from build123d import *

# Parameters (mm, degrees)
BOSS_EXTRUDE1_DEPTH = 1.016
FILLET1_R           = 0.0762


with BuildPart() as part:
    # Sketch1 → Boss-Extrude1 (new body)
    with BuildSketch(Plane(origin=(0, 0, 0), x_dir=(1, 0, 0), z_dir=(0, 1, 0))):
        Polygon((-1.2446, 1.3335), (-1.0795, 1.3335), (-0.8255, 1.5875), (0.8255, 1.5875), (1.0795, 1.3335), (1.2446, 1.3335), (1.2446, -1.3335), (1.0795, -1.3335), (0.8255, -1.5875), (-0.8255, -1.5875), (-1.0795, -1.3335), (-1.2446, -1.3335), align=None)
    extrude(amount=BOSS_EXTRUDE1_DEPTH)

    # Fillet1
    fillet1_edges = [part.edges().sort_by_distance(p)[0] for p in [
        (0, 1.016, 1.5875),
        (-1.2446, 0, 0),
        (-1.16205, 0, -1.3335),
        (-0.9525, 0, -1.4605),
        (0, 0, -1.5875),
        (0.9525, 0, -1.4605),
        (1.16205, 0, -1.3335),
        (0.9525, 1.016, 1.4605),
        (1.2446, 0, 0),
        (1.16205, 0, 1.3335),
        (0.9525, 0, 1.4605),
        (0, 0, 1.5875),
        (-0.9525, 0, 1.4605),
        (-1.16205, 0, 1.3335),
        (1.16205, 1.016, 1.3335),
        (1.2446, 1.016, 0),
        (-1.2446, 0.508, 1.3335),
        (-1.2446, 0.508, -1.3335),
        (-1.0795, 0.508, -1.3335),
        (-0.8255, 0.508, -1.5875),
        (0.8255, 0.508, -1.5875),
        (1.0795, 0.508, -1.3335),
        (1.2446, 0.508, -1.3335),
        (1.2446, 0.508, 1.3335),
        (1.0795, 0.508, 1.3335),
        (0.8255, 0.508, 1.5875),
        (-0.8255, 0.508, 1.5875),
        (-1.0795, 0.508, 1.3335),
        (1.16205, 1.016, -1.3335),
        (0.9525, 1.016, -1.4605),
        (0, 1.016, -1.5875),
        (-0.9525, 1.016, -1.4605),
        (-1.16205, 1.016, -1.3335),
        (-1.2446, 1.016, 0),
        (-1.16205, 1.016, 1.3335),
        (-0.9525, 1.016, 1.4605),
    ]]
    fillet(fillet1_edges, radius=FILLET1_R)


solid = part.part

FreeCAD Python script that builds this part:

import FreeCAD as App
import Part
import Sketcher
Q = App.Units.Quantity

doc = App.newDocument("Part")
body = doc.addObject("PartDesign::Body", "Body")

# Sketch on XZ plane
sketch1 = doc.addObject("Sketcher::SketchObject", "Sketch")
body.addObject(sketch1)
sketch1.AttachmentSupport = (doc.XZ_Plane, [""])
sketch1.MapMode = "FlatFace"
sketch1.addGeometry([
    Part.LineSegment(App.Vector(-1.08, -1.33, 0), App.Vector(-1.24, -1.33, 0)),  # 0
    Part.LineSegment(App.Vector(-1.24, -1.33, 0), App.Vector(-1.24, 1.33, 0)),  # 1
    Part.LineSegment(App.Vector(-1.24, 1.33, 0), App.Vector(-1.08, 1.33, 0)),  # 2
    Part.LineSegment(App.Vector(-1.08, 1.33, 0), App.Vector(-0.83, 1.59, 0)),  # 3
    Part.LineSegment(App.Vector(-0.83, 1.59, 0), App.Vector(0.83, 1.59, 0)),  # 4
    Part.LineSegment(App.Vector(0.83, 1.59, 0), App.Vector(1.08, 1.33, 0)),  # 5
    Part.LineSegment(App.Vector(1.08, 1.33, 0), App.Vector(1.24, 1.33, 0)),  # 6
    Part.LineSegment(App.Vector(1.24, 1.33, 0), App.Vector(1.24, -1.33, 0)),  # 7
    Part.LineSegment(App.Vector(1.24, -1.33, 0), App.Vector(1.08, -1.33, 0)),  # 8
    Part.LineSegment(App.Vector(1.08, -1.33, 0), App.Vector(0.83, -1.59, 0)),  # 9
    Part.LineSegment(App.Vector(0.83, -1.59, 0), App.Vector(-0.83, -1.59, 0)),  # 10
    Part.LineSegment(App.Vector(-0.83, -1.59, 0), App.Vector(-1.08, -1.33, 0)),  # 11
], False)
sketch1.addConstraint([
    Sketcher.Constraint("Coincident", 0, 2, 1, 1),
    Sketcher.Constraint("Coincident", 1, 2, 2, 1),
    Sketcher.Constraint("Coincident", 2, 2, 3, 1),
    Sketcher.Constraint("Coincident", 3, 2, 4, 1),
    Sketcher.Constraint("Coincident", 4, 2, 5, 1),
    Sketcher.Constraint("Coincident", 5, 2, 6, 1),
    Sketcher.Constraint("Coincident", 6, 2, 7, 1),
    Sketcher.Constraint("Coincident", 7, 2, 8, 1),
    Sketcher.Constraint("Coincident", 8, 2, 9, 1),
    Sketcher.Constraint("Coincident", 9, 2, 10, 1),
    Sketcher.Constraint("Coincident", 10, 2, 11, 1),
    Sketcher.Constraint("Coincident", 11, 2, 0, 1),
    Sketcher.Constraint("Horizontal", 0),
    Sketcher.Constraint("Vertical", 1),
    Sketcher.Constraint("Horizontal", 2),
    Sketcher.Constraint("Horizontal", 4),
    Sketcher.Constraint("Horizontal", 6),
    Sketcher.Constraint("Vertical", 7),
    Sketcher.Constraint("Horizontal", 8),
    Sketcher.Constraint("Horizontal", 10),
    Sketcher.Constraint("Symmetric", 0, 2, 6, 2, -1, 1),
    Sketcher.Constraint("Symmetric", 2, 2, 8, 2, -1, 1),
    Sketcher.Constraint("Symmetric", 3, 2, 9, 2, -1, 1),
    Sketcher.Constraint("Symmetric", 2, 2, 5, 2, -2),
    Sketcher.Constraint("Perpendicular", 3, 5),
    Sketcher.Constraint("Perpendicular", 9, 11),
    Sketcher.Constraint("Vertical", 4, 2, 9, 2),
    Sketcher.Constraint("Vertical", 3, 2, 10, 2),
    Sketcher.Constraint("DistanceX", 4, 1, 4, 2, Q("0.065 in")),
    Sketcher.Constraint("DistanceY", 1, 1, 1, 2, Q("0.105 in")),
    Sketcher.Constraint("DistanceX", 2, 2, 3, 2, Q("0.01 in")),
    Sketcher.Constraint("DistanceX", 0, 2, 0, 1, Q("0.0065 in")),
])
pad1 = doc.addObject("PartDesign::Pad", "Pad")
body.addObject(pad1)
pad1.Profile = sketch1
pad1.Length = Q("0.04 in")
pad1.Reversed = True
doc.recompute()

fillet = doc.addObject("PartDesign::Fillet", "Fillet")
body.addObject(fillet)
fillet.Base = (pad1, ["Edge1"])
fillet.UseAllEdges = True
fillet.Radius = Q("0.003 in")

doc.recompute()
